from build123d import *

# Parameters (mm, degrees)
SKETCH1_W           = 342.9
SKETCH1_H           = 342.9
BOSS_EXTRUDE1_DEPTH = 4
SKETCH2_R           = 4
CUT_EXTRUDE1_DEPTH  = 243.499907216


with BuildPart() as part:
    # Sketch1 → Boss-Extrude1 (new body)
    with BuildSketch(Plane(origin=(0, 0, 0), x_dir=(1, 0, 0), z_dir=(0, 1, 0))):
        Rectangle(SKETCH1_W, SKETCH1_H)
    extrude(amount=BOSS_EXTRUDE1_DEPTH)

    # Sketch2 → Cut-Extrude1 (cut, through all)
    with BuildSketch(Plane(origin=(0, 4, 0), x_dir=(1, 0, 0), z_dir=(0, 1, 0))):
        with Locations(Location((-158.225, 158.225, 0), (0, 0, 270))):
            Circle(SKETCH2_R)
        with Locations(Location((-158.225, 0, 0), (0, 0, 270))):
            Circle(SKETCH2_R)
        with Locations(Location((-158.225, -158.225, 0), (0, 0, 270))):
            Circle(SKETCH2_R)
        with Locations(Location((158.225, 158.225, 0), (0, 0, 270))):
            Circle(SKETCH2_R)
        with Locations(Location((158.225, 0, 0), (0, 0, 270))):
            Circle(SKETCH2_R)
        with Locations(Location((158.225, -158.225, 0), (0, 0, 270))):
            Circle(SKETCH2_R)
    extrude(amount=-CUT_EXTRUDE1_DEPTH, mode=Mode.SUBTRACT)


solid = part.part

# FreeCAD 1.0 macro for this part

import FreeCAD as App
import Part
import Sketcher

V = App.Vector
Q = App.Units.Quantity

doc = App.newDocument("Part")
body = doc.addObject("PartDesign::Body", "Body")

# Sketch on XZ plane
sketch1 = body.newObject("Sketcher::SketchObject", "Sketch")
sketch1.AttachmentSupport = (doc.getObject("XZ_Plane"), [""])
sketch1.MapMode = "FlatFace"
sketch1.addGeometry([
    Part.LineSegment(V(-171.45, -171.45, 0), V(-171.45, 171.45, 0)),
    Part.LineSegment(V(-171.45, 171.45, 0), V(171.45, 171.45, 0)),
    Part.LineSegment(V(171.45, 171.45, 0), V(171.45, -171.45, 0)),
    Part.LineSegment(V(171.45, -171.45, 0), V(-171.45, -171.45, 0)),
], False)
sketch1.addConstraint([
    Sketcher.Constraint("Coincident", 0, 2, 1, 1),
    Sketcher.Constraint("Coincident", 1, 2, 2, 1),
    Sketcher.Constraint("Coincident", 2, 2, 3, 1),
    Sketcher.Constraint("Coincident", 3, 2, 0, 1),
    Sketcher.Constraint("Vertical", 0),
    Sketcher.Constraint("Horizontal", 1),
    Sketcher.Constraint("Vertical", 2),
    Sketcher.Constraint("Horizontal", 3),
    Sketcher.Constraint("Symmetric", 0, 2, 2, 2, -1, 1),
    Sketcher.Constraint("Equal", 3, 0),
    Sketcher.Constraint("DistanceX", 1, 1, 1, 2, Q("342.9 mm")),
])
pad1 = body.newObject("PartDesign::Pad", "Pad")
pad1.Profile = sketch1
pad1.Length = 4
pad1.Reversed = True

# Sketch on XZ plane
sketch2 = body.newObject("Sketcher::SketchObject", "Sketch001")
sketch2.AttachmentSupport = (doc.getObject("XZ_Plane"), [""])
sketch2.MapMode = "FlatFace"
sketch2.AttachmentOffset = App.Placement(V(0, 0, -4), App.Rotation())
sketch2.addGeometry([
    Part.Circle(V(-158.225, -158.225, 0), V(0, 0, 1), 4),  # 0
    Part.Circle(V(-158.225, 0, 0), V(0, 0, 1), 4),  # 1
    Part.Circle(V(-158.225, 158.225, 0), V(0, 0, 1), 4),  # 2
    Part.Circle(V(158.225, -158.225, 0), V(0, 0, 1), 4),  # 3
    Part.Circle(V(158.225, 0, 0), V(0, 0, 1), 4),  # 4
    Part.Circle(V(158.225, 158.225, 0), V(0, 0, 1), 4),  # 5
], False)
sketch2.addConstraint([
    Sketcher.Constraint("Equal", 0, 1),
    Sketcher.Constraint("Equal", 1, 2),
    Sketcher.Constraint("Equal", 2, 3),
    Sketcher.Constraint("Equal", 3, 4),
    Sketcher.Constraint("Equal", 4, 5),
    Sketcher.Constraint("Symmetric", 2, 3, 3, 3, -1, 1),
    Sketcher.Constraint("Symmetric", 1, 3, 4, 3, -1, 1),
    Sketcher.Constraint("Symmetric", 0, 3, 5, 3, -1, 1),
    Sketcher.Constraint("Symmetric", 0, 3, 3, 3, -2),
    Sketcher.Constraint("PointOnObject", 1, 3, -1),
    Sketcher.Constraint("Vertical", 0, 3, 1, 3),
    Sketcher.Constraint("Diameter", 0, Q("8 mm")),
    Sketcher.Constraint("DistanceY", 0, 3, 2, 3, Q("316.45 mm")),
    Sketcher.Constraint("DistanceX", 0, 3, 3, 3, Q("316.45 mm")),
])
pocket1 = body.newObject("PartDesign::Pocket", "Pocket")
pocket1.Profile = sketch2
pocket1.Type = "ThroughAll"
pocket1.Reversed = True

doc.recompute()
